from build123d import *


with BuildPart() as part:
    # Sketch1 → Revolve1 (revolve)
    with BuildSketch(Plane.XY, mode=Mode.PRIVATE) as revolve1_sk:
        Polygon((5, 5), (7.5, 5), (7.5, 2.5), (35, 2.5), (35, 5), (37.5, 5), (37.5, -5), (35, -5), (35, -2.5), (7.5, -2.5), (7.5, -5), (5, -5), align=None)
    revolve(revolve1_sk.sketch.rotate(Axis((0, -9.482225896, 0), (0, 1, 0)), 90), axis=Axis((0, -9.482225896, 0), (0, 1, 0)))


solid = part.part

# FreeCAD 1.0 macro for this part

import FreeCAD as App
import Part
import Sketcher


def add_polygon(sketch, points):
    """Adds a closed chain of lines whose ends are joined by coincident constraints."""
    first, n = sketch.GeometryCount, len(points)
    for a, b in zip(points, points[1:] + points[:1]):
        sketch.addGeometry(Part.LineSegment(App.Vector(*a, 0), App.Vector(*b, 0)), False)
    for i in range(n):
        sketch.addConstraint(Sketcher.Constraint("Coincident", first + i, 2, first + (i + 1) % n, 1))

doc = App.newDocument("Part")
body = doc.addObject("PartDesign::Body", "Body")

sketch1 = body.newObject("Sketcher::SketchObject", "Sketch")
sketch1.AttachmentSupport = (doc.getObject("XY_Plane"), [""])
sketch1.MapMode = "FlatFace"
add_polygon(sketch1, [(7.5, 5), (5, 5), (5, -5), (7.5, -5), (7.5, -2.5), (35, -2.5), (35, -5), (37.5, -5), (37.5, 5), (35, 5), (35, 2.5), (7.5, 2.5)])
sketch1.addConstraint([
    Sketcher.Constraint("Horizontal", 0),
    Sketcher.Constraint("Vertical", 1),
    Sketcher.Constraint("Horizontal", 2),
    Sketcher.Constraint("Vertical", 3),
    Sketcher.Constraint("Horizontal", 4),
    Sketcher.Constraint("Vertical", 5),
    Sketcher.Constraint("Horizontal", 6),
    Sketcher.Constraint("Vertical", 7),
    Sketcher.Constraint("Horizontal", 8),
    Sketcher.Constraint("Vertical", 9),
    Sketcher.Constraint("Horizontal", 10),
    Sketcher.Constraint("Vertical", 11),
    Sketcher.Constraint("Symmetric", 5, 2, 8, 2, -1),
    Sketcher.Constraint("Symmetric", 3, 2, 10, 2, -1),
    Sketcher.Constraint("Horizontal", 2, 2, 5, 2),
    Sketcher.Constraint("Horizontal", 0, 2, 7, 2),
    Sketcher.Constraint("Equal", 2, 6),
    Sketcher.Constraint("Equal", 8, 3),
    Sketcher.Constraint("DistanceY", 1, 2, 1, 1, 10.0),
    Sketcher.Constraint("DistanceX", 0, 2, 0, 1, 2.5),
    Sketcher.Constraint("DistanceX", 4, 1, 4, 2, 27.5),
    Sketcher.Constraint("DistanceX", -1, 1, 0, 2, 5.0),
])
revolution = body.newObject("PartDesign::Revolution", "Revolution")
revolution.Profile = sketch1
revolution.ReferenceAxis = (sketch1, ["V_Axis"])
revolution.Angle = 360

doc.recompute()
